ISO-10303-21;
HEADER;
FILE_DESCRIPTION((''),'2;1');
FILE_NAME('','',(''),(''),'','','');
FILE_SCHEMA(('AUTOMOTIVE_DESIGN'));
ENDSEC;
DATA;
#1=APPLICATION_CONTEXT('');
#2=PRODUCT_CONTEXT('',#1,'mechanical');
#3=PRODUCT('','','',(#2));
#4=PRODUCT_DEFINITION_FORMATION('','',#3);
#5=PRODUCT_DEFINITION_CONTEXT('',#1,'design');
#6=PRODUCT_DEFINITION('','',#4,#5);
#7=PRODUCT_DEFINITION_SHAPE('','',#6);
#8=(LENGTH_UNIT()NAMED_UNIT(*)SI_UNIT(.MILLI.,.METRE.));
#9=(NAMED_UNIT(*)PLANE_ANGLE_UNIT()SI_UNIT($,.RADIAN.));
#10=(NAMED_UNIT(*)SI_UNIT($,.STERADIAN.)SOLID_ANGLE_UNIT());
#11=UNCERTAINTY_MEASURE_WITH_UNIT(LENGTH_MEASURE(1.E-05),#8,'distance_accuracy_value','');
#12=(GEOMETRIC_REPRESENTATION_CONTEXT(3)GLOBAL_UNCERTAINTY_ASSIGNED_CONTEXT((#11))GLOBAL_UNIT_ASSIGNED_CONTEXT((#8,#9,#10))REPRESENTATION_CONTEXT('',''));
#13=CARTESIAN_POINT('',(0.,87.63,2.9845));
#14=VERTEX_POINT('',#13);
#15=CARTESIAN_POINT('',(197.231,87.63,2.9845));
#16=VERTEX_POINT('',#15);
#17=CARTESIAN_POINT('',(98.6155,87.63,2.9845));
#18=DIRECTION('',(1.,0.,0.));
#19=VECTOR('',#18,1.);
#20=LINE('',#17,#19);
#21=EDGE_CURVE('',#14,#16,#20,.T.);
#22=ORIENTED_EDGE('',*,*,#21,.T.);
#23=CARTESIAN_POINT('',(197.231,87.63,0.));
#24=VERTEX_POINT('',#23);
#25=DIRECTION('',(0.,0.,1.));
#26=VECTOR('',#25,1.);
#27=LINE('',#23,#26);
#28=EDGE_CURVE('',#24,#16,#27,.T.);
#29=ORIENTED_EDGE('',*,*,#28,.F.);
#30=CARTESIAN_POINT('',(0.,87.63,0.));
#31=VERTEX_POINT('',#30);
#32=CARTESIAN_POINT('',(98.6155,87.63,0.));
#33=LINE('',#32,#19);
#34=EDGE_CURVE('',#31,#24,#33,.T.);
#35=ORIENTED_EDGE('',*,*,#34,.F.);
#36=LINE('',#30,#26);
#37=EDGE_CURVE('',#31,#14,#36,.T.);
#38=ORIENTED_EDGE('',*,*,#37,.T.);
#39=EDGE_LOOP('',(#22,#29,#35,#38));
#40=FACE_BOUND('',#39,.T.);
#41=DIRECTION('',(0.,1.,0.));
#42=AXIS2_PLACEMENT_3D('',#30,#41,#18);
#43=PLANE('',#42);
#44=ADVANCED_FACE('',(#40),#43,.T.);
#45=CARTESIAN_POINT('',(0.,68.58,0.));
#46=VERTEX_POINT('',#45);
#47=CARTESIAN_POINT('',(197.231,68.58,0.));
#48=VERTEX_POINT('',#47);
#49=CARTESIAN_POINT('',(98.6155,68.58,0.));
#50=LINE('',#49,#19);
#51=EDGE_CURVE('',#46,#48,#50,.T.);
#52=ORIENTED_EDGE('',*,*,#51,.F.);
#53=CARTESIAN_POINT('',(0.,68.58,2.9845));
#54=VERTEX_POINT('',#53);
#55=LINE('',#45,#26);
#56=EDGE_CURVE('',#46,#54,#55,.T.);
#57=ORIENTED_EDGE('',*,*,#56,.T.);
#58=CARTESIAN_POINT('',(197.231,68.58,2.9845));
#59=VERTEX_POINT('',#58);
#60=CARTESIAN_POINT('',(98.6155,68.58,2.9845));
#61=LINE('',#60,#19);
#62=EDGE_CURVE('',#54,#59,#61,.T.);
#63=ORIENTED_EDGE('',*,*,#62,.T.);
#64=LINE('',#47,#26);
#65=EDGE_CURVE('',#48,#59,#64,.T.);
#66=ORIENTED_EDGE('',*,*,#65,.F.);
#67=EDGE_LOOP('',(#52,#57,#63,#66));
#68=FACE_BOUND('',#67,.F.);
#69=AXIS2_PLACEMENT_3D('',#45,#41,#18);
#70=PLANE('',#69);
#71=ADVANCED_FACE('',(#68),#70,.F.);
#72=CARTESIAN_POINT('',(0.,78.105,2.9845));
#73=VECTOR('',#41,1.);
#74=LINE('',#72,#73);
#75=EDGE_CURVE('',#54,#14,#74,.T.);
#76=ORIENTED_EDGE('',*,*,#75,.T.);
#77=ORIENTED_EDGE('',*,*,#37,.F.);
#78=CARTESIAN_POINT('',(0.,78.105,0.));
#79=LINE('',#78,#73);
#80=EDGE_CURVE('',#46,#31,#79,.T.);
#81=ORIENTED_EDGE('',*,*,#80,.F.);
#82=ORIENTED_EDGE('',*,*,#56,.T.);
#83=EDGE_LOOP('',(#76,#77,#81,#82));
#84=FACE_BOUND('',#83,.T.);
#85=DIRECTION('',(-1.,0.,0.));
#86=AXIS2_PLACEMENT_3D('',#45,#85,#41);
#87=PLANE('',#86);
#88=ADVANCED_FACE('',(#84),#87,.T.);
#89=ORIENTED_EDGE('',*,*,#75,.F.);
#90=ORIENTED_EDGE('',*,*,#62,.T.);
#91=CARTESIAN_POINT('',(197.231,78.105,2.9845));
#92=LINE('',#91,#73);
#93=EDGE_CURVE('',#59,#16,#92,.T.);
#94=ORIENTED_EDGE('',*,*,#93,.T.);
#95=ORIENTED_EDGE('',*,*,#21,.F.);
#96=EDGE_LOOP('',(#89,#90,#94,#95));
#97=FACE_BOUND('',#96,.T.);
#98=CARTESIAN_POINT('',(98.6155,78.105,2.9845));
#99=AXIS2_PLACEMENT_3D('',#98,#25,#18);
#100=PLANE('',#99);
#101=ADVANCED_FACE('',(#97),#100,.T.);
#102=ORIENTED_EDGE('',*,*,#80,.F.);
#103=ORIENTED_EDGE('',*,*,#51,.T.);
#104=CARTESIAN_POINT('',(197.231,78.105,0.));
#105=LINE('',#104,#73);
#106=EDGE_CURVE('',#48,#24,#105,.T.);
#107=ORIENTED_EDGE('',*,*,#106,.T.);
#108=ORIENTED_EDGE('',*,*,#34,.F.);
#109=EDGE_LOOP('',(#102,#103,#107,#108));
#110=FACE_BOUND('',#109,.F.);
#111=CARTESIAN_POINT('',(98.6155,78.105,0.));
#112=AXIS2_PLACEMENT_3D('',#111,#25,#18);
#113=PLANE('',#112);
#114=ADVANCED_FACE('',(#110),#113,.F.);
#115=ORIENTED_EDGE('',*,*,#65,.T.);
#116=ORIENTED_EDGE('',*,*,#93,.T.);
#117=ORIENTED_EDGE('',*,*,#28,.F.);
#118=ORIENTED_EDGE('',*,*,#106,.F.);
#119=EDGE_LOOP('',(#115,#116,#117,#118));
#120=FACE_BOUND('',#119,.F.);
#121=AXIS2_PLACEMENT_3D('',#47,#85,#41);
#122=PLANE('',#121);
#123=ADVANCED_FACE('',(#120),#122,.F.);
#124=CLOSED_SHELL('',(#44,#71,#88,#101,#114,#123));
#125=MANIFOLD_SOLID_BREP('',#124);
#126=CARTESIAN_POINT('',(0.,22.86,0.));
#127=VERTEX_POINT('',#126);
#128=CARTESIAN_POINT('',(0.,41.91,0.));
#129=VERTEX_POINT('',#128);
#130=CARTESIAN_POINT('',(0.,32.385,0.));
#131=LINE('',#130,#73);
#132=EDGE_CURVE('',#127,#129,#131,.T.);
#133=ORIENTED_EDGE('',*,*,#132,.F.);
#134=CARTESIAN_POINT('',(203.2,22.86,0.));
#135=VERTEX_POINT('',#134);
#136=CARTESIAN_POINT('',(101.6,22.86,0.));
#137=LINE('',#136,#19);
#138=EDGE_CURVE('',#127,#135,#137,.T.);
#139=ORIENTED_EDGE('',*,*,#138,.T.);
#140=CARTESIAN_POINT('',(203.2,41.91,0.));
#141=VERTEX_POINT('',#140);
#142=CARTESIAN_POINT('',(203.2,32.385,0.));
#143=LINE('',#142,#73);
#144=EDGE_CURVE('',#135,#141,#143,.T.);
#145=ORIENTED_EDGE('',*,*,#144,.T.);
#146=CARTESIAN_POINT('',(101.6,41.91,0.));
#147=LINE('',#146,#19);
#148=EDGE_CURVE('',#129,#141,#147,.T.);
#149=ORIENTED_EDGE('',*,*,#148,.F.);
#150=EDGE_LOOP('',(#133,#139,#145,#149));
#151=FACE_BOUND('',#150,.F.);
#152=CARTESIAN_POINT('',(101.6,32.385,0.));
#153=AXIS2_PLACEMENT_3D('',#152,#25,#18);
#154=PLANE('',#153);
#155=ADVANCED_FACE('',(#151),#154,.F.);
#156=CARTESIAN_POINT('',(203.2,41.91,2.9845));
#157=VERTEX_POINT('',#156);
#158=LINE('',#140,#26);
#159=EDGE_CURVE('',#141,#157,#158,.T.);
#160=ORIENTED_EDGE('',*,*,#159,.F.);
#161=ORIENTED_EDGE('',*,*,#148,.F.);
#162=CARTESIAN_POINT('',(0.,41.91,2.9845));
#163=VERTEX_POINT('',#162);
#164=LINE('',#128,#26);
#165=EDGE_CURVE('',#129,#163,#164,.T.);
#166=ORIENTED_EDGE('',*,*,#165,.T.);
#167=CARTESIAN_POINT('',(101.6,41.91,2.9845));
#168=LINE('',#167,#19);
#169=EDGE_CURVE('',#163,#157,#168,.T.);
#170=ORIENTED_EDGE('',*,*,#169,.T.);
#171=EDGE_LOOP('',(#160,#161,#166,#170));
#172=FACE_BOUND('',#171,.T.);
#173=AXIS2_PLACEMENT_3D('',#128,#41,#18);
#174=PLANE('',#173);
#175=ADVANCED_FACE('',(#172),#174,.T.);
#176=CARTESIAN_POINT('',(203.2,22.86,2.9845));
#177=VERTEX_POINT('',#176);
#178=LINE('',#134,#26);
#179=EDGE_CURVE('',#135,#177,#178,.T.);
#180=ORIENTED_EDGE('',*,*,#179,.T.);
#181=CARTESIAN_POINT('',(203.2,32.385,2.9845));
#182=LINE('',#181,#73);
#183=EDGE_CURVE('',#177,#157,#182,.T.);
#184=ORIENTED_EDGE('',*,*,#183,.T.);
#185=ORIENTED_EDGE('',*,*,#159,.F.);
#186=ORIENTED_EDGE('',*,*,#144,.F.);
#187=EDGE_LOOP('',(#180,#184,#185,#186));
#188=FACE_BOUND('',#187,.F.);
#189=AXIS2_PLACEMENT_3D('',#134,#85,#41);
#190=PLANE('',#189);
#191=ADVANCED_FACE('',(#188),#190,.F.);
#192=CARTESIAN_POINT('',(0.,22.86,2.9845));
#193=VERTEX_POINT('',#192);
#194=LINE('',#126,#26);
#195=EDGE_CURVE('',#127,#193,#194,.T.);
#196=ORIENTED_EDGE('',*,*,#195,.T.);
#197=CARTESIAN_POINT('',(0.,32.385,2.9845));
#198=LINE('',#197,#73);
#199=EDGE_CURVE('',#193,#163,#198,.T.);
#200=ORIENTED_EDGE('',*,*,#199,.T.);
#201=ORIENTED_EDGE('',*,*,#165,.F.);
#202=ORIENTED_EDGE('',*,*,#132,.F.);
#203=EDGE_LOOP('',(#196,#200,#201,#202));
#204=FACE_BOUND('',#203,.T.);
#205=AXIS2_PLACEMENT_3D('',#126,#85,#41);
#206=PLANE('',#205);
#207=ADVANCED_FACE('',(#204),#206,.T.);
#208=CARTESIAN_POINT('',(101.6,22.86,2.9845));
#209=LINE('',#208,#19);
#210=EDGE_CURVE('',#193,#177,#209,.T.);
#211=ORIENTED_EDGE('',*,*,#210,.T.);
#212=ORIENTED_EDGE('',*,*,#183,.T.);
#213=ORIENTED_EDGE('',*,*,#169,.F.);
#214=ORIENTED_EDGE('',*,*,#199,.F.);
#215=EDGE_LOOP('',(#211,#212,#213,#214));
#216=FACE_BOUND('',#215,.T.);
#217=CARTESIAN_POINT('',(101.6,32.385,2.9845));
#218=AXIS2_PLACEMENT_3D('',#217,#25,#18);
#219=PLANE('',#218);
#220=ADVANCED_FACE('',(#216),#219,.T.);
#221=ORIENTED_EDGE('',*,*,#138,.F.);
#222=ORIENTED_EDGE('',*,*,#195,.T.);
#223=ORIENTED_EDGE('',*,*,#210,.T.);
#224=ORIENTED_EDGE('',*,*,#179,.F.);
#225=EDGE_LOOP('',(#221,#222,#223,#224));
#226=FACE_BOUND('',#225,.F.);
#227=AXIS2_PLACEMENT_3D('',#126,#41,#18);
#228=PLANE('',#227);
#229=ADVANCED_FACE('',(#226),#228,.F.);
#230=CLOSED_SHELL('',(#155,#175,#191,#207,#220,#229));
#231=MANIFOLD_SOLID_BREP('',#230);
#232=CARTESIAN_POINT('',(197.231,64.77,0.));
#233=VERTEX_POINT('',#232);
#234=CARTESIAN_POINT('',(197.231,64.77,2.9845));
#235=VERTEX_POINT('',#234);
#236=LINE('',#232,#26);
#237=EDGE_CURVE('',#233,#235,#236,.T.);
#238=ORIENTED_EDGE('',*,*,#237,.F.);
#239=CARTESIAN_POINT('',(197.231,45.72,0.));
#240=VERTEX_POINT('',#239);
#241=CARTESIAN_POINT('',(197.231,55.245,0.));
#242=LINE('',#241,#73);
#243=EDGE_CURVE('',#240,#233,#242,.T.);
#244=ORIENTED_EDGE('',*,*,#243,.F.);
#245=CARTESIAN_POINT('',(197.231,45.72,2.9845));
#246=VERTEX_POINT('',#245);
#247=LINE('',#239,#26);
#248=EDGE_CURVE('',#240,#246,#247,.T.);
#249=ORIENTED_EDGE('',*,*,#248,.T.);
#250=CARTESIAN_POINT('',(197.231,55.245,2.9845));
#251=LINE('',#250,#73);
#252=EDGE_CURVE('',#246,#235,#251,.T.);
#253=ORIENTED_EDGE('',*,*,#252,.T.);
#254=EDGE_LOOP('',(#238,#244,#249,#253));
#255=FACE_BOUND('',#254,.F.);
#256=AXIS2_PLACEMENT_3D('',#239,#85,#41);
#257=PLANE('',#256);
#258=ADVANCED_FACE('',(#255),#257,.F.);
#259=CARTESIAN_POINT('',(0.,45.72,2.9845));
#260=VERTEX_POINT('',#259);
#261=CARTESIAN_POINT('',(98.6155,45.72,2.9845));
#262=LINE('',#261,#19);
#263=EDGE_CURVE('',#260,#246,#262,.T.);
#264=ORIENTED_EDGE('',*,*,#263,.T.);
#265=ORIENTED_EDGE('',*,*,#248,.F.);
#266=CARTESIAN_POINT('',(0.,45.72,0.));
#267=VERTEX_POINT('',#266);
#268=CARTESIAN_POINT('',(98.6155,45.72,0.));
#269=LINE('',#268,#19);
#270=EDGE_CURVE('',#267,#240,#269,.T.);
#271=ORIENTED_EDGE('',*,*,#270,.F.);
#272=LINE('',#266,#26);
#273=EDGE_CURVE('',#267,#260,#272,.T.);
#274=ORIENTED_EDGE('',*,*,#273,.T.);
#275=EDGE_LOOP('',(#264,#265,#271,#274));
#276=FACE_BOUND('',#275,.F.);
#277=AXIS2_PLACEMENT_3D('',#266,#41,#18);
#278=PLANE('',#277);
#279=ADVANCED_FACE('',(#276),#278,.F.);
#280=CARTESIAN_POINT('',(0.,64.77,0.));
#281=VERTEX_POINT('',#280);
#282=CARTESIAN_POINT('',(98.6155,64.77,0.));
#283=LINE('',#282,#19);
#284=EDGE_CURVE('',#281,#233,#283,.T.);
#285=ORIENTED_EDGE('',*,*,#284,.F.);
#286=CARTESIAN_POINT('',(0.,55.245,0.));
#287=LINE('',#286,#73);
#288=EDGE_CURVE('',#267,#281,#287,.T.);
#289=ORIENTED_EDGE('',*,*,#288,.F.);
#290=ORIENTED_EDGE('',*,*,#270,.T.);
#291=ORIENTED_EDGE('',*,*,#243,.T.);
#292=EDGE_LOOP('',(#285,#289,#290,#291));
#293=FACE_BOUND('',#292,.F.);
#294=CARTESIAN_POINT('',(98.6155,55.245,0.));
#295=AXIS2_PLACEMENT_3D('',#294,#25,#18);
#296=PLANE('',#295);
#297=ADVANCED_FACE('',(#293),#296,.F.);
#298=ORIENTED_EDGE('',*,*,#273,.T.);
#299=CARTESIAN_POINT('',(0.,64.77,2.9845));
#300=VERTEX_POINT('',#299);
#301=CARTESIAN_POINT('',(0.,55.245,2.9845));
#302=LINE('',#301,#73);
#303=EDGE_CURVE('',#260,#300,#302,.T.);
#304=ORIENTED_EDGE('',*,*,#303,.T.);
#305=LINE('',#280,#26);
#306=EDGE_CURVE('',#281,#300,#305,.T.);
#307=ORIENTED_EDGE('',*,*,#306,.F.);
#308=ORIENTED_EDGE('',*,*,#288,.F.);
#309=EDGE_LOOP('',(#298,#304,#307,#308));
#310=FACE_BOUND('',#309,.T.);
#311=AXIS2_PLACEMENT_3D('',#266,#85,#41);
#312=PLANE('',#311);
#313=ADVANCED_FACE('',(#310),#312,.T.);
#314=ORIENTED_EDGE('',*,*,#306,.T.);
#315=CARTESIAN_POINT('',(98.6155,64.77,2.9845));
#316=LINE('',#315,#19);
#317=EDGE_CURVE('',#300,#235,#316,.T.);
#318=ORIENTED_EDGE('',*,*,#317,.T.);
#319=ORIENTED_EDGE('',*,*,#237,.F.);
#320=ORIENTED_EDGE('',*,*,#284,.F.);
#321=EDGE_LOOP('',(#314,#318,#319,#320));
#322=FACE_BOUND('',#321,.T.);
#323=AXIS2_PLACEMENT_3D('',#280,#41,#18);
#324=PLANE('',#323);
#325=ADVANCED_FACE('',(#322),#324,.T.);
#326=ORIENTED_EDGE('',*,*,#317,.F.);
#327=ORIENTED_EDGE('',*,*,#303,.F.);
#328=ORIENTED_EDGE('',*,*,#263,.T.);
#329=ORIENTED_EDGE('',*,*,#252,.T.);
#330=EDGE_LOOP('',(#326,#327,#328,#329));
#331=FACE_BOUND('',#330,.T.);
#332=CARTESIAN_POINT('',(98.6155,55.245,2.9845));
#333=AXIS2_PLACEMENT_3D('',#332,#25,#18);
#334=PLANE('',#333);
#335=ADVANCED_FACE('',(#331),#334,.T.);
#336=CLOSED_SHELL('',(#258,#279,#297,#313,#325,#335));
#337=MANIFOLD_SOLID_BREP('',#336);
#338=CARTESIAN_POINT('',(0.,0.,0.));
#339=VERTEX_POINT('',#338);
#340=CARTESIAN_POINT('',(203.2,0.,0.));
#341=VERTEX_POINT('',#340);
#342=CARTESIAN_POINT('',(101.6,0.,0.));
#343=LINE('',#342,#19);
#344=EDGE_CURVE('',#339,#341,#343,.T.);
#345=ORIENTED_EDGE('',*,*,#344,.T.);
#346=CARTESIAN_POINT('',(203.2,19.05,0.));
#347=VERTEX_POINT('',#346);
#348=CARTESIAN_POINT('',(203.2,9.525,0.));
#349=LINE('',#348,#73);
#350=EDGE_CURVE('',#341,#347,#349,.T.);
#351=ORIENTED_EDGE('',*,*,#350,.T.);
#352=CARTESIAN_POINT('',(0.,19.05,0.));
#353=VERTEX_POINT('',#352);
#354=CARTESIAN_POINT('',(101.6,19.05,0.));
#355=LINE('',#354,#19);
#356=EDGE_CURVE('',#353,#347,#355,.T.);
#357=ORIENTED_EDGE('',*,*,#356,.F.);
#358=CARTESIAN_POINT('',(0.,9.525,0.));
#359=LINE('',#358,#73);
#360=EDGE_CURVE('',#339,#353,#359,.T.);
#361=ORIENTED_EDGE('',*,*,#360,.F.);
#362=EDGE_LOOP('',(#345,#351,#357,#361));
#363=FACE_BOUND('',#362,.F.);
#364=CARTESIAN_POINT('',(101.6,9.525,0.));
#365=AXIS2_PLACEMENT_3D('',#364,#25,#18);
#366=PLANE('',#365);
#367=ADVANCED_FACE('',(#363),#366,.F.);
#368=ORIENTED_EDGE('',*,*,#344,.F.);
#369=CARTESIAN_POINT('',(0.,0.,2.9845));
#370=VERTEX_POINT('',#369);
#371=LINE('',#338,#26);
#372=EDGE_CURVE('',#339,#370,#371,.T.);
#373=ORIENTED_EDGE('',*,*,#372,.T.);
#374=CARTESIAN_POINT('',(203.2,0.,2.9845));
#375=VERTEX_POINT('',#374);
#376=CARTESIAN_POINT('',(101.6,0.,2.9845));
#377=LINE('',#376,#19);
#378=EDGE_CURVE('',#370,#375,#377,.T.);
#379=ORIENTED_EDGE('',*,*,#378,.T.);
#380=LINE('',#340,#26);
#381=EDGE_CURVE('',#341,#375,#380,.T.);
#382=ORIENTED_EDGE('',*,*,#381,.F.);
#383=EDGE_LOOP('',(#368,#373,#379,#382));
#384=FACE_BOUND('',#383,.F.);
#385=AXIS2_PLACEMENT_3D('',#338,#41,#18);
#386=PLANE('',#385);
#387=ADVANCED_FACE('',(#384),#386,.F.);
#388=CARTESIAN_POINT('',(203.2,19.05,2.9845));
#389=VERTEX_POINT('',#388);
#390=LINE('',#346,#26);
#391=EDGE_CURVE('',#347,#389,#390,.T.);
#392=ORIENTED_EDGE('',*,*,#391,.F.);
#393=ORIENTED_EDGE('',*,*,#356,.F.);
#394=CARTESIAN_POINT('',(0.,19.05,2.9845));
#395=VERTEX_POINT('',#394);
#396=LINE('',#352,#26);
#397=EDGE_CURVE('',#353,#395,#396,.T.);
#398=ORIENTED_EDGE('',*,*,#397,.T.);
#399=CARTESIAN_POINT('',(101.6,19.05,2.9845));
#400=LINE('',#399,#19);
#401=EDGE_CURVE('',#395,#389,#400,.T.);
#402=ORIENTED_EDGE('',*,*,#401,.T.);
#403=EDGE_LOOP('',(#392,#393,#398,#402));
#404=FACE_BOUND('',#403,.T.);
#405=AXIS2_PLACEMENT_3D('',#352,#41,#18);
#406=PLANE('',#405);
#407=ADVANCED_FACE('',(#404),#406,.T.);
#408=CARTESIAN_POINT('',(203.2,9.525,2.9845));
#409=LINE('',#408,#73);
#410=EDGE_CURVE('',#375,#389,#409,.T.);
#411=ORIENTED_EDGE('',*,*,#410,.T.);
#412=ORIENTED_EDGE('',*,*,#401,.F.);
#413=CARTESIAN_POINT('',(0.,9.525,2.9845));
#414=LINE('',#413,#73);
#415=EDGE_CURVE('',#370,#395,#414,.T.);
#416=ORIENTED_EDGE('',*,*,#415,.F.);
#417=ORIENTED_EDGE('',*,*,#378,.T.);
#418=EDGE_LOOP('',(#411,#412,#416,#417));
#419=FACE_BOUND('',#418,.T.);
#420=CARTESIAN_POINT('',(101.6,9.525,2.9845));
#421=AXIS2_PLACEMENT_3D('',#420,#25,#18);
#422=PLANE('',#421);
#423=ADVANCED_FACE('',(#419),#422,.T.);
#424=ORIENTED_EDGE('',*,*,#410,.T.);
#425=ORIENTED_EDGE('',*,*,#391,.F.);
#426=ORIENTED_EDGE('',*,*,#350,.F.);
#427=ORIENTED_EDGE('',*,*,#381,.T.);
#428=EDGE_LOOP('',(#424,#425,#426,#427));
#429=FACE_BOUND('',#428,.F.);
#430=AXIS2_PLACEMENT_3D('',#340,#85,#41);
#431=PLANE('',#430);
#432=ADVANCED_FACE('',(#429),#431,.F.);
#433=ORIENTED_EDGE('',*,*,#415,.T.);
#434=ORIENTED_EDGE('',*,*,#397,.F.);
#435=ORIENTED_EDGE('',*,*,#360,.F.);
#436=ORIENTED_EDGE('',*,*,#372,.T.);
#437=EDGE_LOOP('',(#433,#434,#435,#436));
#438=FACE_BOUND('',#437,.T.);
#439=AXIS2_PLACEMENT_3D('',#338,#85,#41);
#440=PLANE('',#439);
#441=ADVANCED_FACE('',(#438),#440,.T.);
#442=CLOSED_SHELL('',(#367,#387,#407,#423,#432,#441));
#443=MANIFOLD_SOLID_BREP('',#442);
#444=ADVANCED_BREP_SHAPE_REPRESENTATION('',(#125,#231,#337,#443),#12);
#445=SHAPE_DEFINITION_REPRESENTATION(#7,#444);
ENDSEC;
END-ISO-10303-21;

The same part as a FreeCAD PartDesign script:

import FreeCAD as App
import Part
import Sketcher
from FreeCAD import Vector
Q = App.Units.Quantity

doc = App.newDocument("Part")
body = doc.addObject("PartDesign::Body", "Body")
body.AllowCompound = True

sketch1 = doc.addObject("Sketcher::SketchObject", "Sketch")
body.addObject(sketch1)
sketch1.AttachmentSupport = (doc.XY_Plane, [""])
sketch1.MapMode = "FlatFace"
sketch1.addGeometry(Part.LineSegment(Vector(0, 19, 0), Vector(0, 0, 0)), False)
sketch1.addGeometry(Part.LineSegment(Vector(0, 0, 0), Vector(203, 0, 0)), False)
sketch1.addGeometry(Part.LineSegment(Vector(203, 0, 0), Vector(203, 19, 0)), False)
sketch1.addGeometry(Part.LineSegment(Vector(203, 19, 0), Vector(0, 19, 0)), False)
sketch1.addGeometry(Part.LineSegment(Vector(0, 42, 0), Vector(0, 23, 0)), False)
sketch1.addGeometry(Part.LineSegment(Vector(0, 23, 0), Vector(203, 23, 0)), False)
sketch1.addGeometry(Part.LineSegment(Vector(203, 23, 0), Vector(203, 42, 0)), False)
sketch1.addGeometry(Part.LineSegment(Vector(203, 42, 0), Vector(0, 42, 0)), False)
sketch1.addGeometry(Part.LineSegment(Vector(0, 65, 0), Vector(0, 46, 0)), False)
sketch1.addGeometry(Part.LineSegment(Vector(0, 46, 0), Vector(197, 46, 0)), False)
sketch1.addGeometry(Part.LineSegment(Vector(197, 46, 0), Vector(197, 65, 0)), False)
sketch1.addGeometry(Part.LineSegment(Vector(197, 65, 0), Vector(0, 65, 0)), False)
sketch1.addGeometry(Part.LineSegment(Vector(0, 88, 0), Vector(0, 69, 0)), False)
sketch1.addGeometry(Part.LineSegment(Vector(0, 69, 0), Vector(197, 69, 0)), False)
sketch1.addGeometry(Part.LineSegment(Vector(197, 69, 0), Vector(197, 88, 0)), False)
sketch1.addGeometry(Part.LineSegment(Vector(197, 88, 0), Vector(0, 88, 0)), False)
sketch1.addConstraint(Sketcher.Constraint("Coincident", 0, 2, 1, 1))
sketch1.addConstraint(Sketcher.Constraint("Coincident", 1, 2, 2, 1))
sketch1.addConstraint(Sketcher.Constraint("Coincident", 2, 2, 3, 1))
sketch1.addConstraint(Sketcher.Constraint("Coincident", 3, 2, 0, 1))
sketch1.addConstraint(Sketcher.Constraint("Coincident", 4, 2, 5, 1))
sketch1.addConstraint(Sketcher.Constraint("Coincident", 5, 2, 6, 1))
sketch1.addConstraint(Sketcher.Constraint("Coincident", 6, 2, 7, 1))
sketch1.addConstraint(Sketcher.Constraint("Coincident", 7, 2, 4, 1))
sketch1.addConstraint(Sketcher.Constraint("Coincident", 8, 2, 9, 1))
sketch1.addConstraint(Sketcher.Constraint("Coincident", 9, 2, 10, 1))
sketch1.addConstraint(Sketcher.Constraint("Coincident", 10, 2, 11, 1))
sketch1.addConstraint(Sketcher.Constraint("Coincident", 11, 2, 8, 1))
sketch1.addConstraint(Sketcher.Constraint("Coincident", 12, 2, 13, 1))
sketch1.addConstraint(Sketcher.Constraint("Coincident", 13, 2, 14, 1))
sketch1.addConstraint(Sketcher.Constraint("Coincident", 14, 2, 15, 1))
sketch1.addConstraint(Sketcher.Constraint("Coincident", 15, 2, 12, 1))
sketch1.addConstraint(Sketcher.Constraint("Vertical", 0))
sketch1.addConstraint(Sketcher.Constraint("Horizontal", 1))
sketch1.addConstraint(Sketcher.Constraint("Vertical", 2))
sketch1.addConstraint(Sketcher.Constraint("Horizontal", 3))
sketch1.addConstraint(Sketcher.Constraint("Vertical", 4))
sketch1.addConstraint(Sketcher.Constraint("Horizontal", 5))
sketch1.addConstraint(Sketcher.Constraint("Vertical", 6))
sketch1.addConstraint(Sketcher.Constraint("Horizontal", 7))
sketch1.addConstraint(Sketcher.Constraint("Vertical", 8))
sketch1.addConstraint(Sketcher.Constraint("Horizontal", 9))
sketch1.addConstraint(Sketcher.Constraint("Vertical", 10))
sketch1.addConstraint(Sketcher.Constraint("Horizontal", 11))
sketch1.addConstraint(Sketcher.Constraint("Vertical", 12))
sketch1.addConstraint(Sketcher.Constraint("Horizontal", 13))
sketch1.addConstraint(Sketcher.Constraint("Vertical", 14))
sketch1.addConstraint(Sketcher.Constraint("Horizontal", 15))
sketch1.addConstraint(Sketcher.Constraint("Coincident", 0, 2, -1, 1))
sketch1.addConstraint(Sketcher.Constraint("PointOnObject", 4, 2, -2))
sketch1.addConstraint(Sketcher.Constraint("PointOnObject", 8, 2, -2))
sketch1.addConstraint(Sketcher.Constraint("PointOnObject", 12, 2, -2))
sketch1.addConstraint(Sketcher.Constraint("Vertical", 2, 2, 5, 2))
sketch1.addConstraint(Sketcher.Constraint("Vertical", 10, 2, 13, 2))
sketch1.addConstraint(Sketcher.Constraint("Equal", 2, 4))
sketch1.addConstraint(Sketcher.Constraint("Equal", 6, 8))
sketch1.addConstraint(Sketcher.Constraint("Equal", 10, 12))
sketch1.addConstraint(Sketcher.Constraint("DistanceX", 1, 1, 1, 2, Q("8 in")))
sketch1.addConstraint(Sketcher.Constraint("DistanceY", 0, 2, 0, 1, Q("0.75 in")))
sketch1.addConstraint(Sketcher.Constraint("DistanceY", -1, 1, 4, 2, Q("0.9 in")))
sketch1.addConstraint(Sketcher.Constraint("DistanceY", -1, 1, 8, 2, Q("1.8 in")))
sketch1.addConstraint(Sketcher.Constraint("DistanceY", -1, 1, 12, 2, Q("2.7 in")))
sketch1.addConstraint(Sketcher.Constraint("DistanceX", 9, 1, 9, 2, Q("7.765 in")))
pad1 = doc.addObject("PartDesign::Pad", "Pad")
body.addObject(pad1)
pad1.Profile = sketch1
pad1.Length = Q("0.1175 in")

doc.recompute()
